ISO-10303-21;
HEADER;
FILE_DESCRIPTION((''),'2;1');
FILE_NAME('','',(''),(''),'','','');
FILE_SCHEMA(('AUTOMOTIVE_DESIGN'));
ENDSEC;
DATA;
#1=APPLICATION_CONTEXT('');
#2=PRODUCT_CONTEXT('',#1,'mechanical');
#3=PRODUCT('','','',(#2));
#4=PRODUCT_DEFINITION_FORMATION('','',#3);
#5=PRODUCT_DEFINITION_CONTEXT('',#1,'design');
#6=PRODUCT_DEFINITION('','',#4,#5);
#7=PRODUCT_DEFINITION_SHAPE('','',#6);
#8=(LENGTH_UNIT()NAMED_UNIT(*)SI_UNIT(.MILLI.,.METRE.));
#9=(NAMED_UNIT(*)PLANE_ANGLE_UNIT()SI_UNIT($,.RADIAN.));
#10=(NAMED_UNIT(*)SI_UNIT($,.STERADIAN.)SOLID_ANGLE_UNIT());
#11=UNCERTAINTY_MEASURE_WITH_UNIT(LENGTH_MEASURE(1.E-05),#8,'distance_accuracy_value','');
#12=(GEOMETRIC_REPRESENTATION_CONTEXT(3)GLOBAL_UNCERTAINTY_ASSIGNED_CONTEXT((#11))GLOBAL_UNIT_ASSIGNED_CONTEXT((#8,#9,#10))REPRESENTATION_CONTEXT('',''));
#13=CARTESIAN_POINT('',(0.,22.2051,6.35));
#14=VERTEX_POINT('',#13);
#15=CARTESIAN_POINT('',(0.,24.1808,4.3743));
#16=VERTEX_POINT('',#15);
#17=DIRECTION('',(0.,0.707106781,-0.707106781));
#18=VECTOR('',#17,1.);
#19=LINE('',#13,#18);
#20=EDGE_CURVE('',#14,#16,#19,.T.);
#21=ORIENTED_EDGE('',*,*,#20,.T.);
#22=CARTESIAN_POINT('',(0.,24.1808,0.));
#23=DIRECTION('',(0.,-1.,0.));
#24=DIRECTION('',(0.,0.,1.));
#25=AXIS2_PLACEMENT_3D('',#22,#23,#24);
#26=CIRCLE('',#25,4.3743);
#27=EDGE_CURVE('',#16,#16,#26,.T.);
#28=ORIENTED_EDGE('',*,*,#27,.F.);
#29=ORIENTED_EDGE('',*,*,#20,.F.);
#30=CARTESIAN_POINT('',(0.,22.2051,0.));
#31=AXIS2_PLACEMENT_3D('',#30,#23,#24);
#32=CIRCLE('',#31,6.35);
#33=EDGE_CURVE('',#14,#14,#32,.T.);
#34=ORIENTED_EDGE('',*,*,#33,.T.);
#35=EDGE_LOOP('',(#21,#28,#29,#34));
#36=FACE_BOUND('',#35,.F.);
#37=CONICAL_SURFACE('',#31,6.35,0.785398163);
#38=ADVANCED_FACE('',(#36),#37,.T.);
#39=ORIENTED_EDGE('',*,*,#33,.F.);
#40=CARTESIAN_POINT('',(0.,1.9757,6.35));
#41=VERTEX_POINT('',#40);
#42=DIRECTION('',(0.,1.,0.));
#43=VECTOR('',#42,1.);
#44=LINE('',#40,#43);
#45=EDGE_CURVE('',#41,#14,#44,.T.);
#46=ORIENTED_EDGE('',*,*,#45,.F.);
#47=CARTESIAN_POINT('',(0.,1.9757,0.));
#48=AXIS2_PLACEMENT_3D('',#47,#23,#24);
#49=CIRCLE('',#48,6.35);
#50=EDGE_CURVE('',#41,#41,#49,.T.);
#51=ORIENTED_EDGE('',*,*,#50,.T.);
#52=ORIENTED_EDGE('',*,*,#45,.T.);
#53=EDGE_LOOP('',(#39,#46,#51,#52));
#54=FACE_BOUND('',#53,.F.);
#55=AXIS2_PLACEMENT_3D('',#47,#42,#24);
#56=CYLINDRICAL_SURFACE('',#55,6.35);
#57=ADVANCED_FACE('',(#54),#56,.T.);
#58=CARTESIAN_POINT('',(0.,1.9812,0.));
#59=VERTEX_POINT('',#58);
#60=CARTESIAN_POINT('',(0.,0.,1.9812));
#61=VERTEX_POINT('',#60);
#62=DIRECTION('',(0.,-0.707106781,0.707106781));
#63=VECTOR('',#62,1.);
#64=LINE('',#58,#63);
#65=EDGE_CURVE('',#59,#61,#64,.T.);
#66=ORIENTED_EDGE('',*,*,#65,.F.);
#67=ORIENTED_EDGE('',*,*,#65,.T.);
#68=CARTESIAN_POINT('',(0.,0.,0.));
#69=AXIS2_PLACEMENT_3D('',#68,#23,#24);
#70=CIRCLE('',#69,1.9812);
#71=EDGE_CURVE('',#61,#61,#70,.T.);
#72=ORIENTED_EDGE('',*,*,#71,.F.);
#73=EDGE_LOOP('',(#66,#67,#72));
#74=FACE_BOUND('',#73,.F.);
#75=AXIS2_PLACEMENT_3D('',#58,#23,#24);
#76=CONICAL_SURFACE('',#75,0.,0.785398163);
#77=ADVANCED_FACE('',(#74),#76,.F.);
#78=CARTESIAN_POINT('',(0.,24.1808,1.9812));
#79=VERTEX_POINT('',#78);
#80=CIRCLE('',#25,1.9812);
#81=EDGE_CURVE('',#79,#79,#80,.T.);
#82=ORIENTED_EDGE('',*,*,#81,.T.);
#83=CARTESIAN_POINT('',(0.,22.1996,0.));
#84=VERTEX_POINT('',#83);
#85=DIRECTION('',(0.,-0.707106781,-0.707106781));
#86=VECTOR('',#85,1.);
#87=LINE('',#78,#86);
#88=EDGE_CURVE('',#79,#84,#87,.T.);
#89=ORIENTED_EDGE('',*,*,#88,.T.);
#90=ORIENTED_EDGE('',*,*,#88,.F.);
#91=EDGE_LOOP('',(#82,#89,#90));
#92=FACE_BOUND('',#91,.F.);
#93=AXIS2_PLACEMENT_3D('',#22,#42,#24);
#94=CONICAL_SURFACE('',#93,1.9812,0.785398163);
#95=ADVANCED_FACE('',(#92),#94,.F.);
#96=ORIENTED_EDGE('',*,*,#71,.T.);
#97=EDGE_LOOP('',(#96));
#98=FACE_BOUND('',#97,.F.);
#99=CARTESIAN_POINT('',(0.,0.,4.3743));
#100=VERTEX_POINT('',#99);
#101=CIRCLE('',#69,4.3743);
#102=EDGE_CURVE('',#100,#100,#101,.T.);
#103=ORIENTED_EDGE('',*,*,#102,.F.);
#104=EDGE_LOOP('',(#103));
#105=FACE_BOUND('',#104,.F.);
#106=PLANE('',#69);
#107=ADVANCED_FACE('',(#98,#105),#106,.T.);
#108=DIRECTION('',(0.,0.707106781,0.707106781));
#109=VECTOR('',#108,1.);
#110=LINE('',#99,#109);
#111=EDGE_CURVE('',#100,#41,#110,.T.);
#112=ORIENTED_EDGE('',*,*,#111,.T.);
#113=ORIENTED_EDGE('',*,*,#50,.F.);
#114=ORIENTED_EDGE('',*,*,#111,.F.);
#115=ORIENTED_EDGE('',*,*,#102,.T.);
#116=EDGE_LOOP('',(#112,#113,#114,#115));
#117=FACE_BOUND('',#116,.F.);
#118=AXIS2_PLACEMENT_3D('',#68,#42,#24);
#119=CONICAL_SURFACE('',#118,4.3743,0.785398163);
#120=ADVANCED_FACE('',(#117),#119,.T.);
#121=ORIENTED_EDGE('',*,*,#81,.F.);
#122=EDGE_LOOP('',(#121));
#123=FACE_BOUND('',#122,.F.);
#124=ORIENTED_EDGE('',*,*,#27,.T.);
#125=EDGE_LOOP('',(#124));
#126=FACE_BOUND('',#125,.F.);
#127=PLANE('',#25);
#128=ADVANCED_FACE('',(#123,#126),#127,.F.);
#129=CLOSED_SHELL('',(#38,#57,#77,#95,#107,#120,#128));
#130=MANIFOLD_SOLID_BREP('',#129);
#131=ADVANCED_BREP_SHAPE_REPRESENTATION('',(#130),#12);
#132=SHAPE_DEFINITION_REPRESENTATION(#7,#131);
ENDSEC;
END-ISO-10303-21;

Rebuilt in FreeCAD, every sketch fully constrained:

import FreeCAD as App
import Part
import Sketcher

V = App.Vector
Q = App.Units.Quantity


def add_polygon(sketch, points):
    """Adds a closed chain of lines whose ends are joined by coincident constraints."""
    first, n = sketch.GeometryCount, len(points)
    for a, b in zip(points, points[1:] + points[:1]):
        sketch.addGeometry(Part.LineSegment(App.Vector(*a, 0), App.Vector(*b, 0)), False)
    for i in range(n):
        sketch.addConstraint(Sketcher.Constraint("Coincident", first + i, 2, first + (i + 1) % n, 1))

doc = App.newDocument("Part")
body = doc.addObject("PartDesign::Body", "Body")

# Sketch on YZ plane
sketch1 = doc.addObject("Sketcher::SketchObject", "Sketch")
body.addObject(sketch1)
sketch1.AttachmentSupport = (doc.YZ_Plane, [""])
sketch1.MapMode = "FlatFace"
add_polygon(sketch1, [(0, 2), (2, 0), (22.2, 0), (24.2, 2), (24.2, 4.4), (22.2, 6.3), (2, 6.3), (0, 4.4)])  # lines 0-7
sketch1.addConstraint([
    Sketcher.Constraint("Horizontal", 1),
    Sketcher.Constraint("Vertical", 3),
    Sketcher.Constraint("Horizontal", 5),
    Sketcher.Constraint("Vertical", 7),
    Sketcher.Constraint("PointOnObject", 0, 2, -1),
    Sketcher.Constraint("PointOnObject", 6, 2, -2),
    Sketcher.Constraint("Perpendicular", 0, 2),
    Sketcher.Constraint("Perpendicular", 2, 4),
    Sketcher.Constraint("Perpendicular", 4, 6),
    Sketcher.Constraint("Horizontal", 3, 2, 6, 2),
    Sketcher.Constraint("Horizontal", 2, 2, 7, 2),
    Sketcher.Constraint("Equal", 0, 2),
    Sketcher.Constraint("Distance", 4, Q("0.11 in")),
    Sketcher.Constraint("DistanceY", -1, 1, 4, 2, Q("0.25 in")),
    Sketcher.Constraint("DistanceX", -1, 1, 0, 2, Q("0.078 in")),
    Sketcher.Constraint("DistanceX", -1, 1, 2, 2, Q("0.952 in")),
])
revolution = doc.addObject("PartDesign::Revolution", "Revolution")
body.addObject(revolution)
revolution.Profile = sketch1
revolution.ReferenceAxis = (sketch1, ["H_Axis"])
revolution.Angle = 360

doc.recompute()
